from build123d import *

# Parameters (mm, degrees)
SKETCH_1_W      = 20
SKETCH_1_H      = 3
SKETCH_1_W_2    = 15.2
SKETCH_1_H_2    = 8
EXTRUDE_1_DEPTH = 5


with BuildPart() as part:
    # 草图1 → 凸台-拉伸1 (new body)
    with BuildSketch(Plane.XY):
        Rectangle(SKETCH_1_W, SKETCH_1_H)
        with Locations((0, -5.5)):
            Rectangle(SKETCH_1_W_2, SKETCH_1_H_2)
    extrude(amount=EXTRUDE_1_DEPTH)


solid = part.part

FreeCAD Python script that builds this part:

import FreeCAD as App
import Part
import Sketcher

doc = App.newDocument("Part")
body = doc.addObject("PartDesign::Body", "Body")

sketch1 = body.newObject("Sketcher::SketchObject", "Sketch")
sketch1.AttachmentSupport = (doc.getObject("XY_Plane"), [""])
sketch1.MapMode = "FlatFace"
sketch1.addGeometry(Part.LineSegment(App.Vector(-10, 1.5, 0), App.Vector(-10, -1.5, 0)), False)
sketch1.addGeometry(Part.LineSegment(App.Vector(-10, -1.5, 0), App.Vector(-7.6, -1.5, 0)), False)
sketch1.addGeometry(Part.LineSegment(App.Vector(-7.6, -1.5, 0), App.Vector(-7.6, -9.5, 0)), False)
sketch1.addGeometry(Part.LineSegment(App.Vector(-7.6, -9.5, 0), App.Vector(7.6, -9.5, 0)), False)
sketch1.addGeometry(Part.LineSegment(App.Vector(7.6, -9.5, 0), App.Vector(7.6, -1.5, 0)), False)
sketch1.addGeometry(Part.LineSegment(App.Vector(7.6, -1.5, 0), App.Vector(10, -1.5, 0)), False)
sketch1.addGeometry(Part.LineSegment(App.Vector(10, -1.5, 0), App.Vector(10, 1.5, 0)), False)
sketch1.addGeometry(Part.LineSegment(App.Vector(10, 1.5, 0), App.Vector(-10, 1.5, 0)), False)
sketch1.addConstraint(Sketcher.Constraint("Coincident", 0, 2, 1, 1))
sketch1.addConstraint(Sketcher.Constraint("Coincident", 1, 2, 2, 1))
sketch1.addConstraint(Sketcher.Constraint("Coincident", 2, 2, 3, 1))
sketch1.addConstraint(Sketcher.Constraint("Coincident", 3, 2, 4, 1))
sketch1.addConstraint(Sketcher.Constraint("Coincident", 4, 2, 5, 1))
sketch1.addConstraint(Sketcher.Constraint("Coincident", 5, 2, 6, 1))
sketch1.addConstraint(Sketcher.Constraint("Coincident", 6, 2, 7, 1))
sketch1.addConstraint(Sketcher.Constraint("Coincident", 7, 2, 0, 1))
sketch1.addConstraint(Sketcher.Constraint("Vertical", 0))
sketch1.addConstraint(Sketcher.Constraint("Horizontal", 1))
sketch1.addConstraint(Sketcher.Constraint("Vertical", 2))
sketch1.addConstraint(Sketcher.Constraint("Horizontal", 3))
sketch1.addConstraint(Sketcher.Constraint("Vertical", 4))
sketch1.addConstraint(Sketcher.Constraint("Horizontal", 5))
sketch1.addConstraint(Sketcher.Constraint("Vertical", 6))
sketch1.addConstraint(Sketcher.Constraint("Horizontal", 7))
sketch1.addConstraint(Sketcher.Constraint("Symmetric", 0, 2, 6, 2, -1, 1))
sketch1.addConstraint(Sketcher.Constraint("Symmetric", 1, 2, 4, 2, -2))
sketch1.addConstraint(Sketcher.Constraint("DistanceX", 7, 2, 7, 1, 20.0))
sketch1.addConstraint(Sketcher.Constraint("DistanceY", 0, 2, 0, 1, 3.0))
sketch1.addConstraint(Sketcher.Constraint("DistanceY", 2, 2, 2, 1, 8.0))
sketch1.addConstraint(Sketcher.Constraint("DistanceX", 1, 1, 1, 2, 2.4))
pad1 = body.newObject("PartDesign::Pad", "Pad")
pad1.Profile = sketch1
pad1.Length = 5

doc.recompute()
